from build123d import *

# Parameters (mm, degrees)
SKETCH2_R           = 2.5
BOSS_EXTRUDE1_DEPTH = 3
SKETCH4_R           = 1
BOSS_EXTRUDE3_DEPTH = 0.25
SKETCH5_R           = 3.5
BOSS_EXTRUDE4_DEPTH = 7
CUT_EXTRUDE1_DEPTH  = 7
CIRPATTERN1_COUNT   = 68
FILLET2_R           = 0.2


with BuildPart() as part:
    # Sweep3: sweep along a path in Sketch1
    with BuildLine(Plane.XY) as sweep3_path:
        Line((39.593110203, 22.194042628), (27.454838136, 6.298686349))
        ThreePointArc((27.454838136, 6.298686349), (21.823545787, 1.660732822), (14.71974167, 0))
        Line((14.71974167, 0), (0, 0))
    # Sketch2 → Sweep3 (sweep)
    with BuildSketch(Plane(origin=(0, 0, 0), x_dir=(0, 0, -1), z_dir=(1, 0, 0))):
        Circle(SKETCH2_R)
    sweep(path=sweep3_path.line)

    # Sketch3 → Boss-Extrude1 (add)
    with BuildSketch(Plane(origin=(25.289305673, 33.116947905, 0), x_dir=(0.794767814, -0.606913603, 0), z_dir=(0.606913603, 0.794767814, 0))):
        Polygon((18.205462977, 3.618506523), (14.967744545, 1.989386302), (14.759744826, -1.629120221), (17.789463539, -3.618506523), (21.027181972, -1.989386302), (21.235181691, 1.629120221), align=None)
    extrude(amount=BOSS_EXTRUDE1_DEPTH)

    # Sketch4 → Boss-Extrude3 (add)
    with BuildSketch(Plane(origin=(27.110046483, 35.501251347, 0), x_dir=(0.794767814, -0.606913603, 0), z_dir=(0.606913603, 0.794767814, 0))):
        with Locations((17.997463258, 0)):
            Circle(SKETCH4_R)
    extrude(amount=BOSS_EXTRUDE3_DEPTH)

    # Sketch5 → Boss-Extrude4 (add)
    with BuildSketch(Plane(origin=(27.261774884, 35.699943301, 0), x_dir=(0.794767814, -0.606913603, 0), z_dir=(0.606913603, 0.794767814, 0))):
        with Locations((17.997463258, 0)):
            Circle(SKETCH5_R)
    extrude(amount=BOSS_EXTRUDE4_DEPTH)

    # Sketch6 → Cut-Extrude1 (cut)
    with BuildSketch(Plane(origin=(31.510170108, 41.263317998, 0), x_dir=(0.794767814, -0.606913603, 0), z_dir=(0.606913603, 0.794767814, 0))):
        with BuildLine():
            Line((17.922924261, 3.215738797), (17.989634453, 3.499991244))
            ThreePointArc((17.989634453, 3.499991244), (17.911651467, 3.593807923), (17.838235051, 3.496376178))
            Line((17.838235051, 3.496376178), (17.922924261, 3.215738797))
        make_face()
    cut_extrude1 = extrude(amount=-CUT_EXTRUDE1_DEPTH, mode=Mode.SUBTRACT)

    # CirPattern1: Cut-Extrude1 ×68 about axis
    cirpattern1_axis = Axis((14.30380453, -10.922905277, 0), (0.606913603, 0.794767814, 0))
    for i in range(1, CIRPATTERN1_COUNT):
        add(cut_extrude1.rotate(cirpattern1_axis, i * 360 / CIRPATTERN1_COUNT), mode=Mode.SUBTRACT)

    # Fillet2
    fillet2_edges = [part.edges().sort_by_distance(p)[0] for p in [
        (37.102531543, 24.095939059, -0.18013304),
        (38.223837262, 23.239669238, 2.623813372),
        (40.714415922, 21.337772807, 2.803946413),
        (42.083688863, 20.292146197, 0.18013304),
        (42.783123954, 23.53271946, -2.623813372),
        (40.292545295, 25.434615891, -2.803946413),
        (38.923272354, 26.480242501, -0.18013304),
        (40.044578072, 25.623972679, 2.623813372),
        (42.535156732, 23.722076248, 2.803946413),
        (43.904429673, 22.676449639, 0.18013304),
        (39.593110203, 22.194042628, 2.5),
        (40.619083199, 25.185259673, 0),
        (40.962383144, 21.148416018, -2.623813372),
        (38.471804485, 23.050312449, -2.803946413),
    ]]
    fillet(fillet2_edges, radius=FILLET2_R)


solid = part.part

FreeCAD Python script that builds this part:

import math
import FreeCAD as App
import Part
import Sketcher
from FreeCAD import Vector
Q = App.Units.Quantity


def edges_at(feature, points):
    """Names of the edges that pass closest to the given points."""
    edges = feature.Shape.Edges
    near = lambda p: min(range(len(edges)), key=lambda i: edges[i].distToShape(Part.Vertex(*p))[0])
    return sorted({f"Edge{near(p) + 1}" for p in points})


def add_polygon(sketch, points):
    """Adds a closed chain of lines whose ends are joined by coincident constraints."""
    first, n = sketch.GeometryCount, len(points)
    for a, b in zip(points, points[1:] + points[:1]):
        sketch.addGeometry(Part.LineSegment(App.Vector(*a, 0), App.Vector(*b, 0)), False)
    for i in range(n):
        sketch.addConstraint(Sketcher.Constraint("Coincident", first + i, 2, first + (i + 1) % n, 1))

doc = App.newDocument("Part")
body = doc.addObject("PartDesign::Body", "Body")

# Sketch on YZ plane
sketch1 = body.newObject("Sketcher::SketchObject", "Sketch")
sketch1.AttachmentSupport = (doc.getObject("YZ_Plane"), [""])
sketch1.MapMode = "FlatFace"
sketch1.addGeometry(Part.Circle(Vector(0, 0, 0), Vector(0, 0, 1), 2.5), False)
sketch1.addConstraint(Sketcher.Constraint("Coincident", 0, 3, -1, 1))
sketch1.addConstraint(Sketcher.Constraint("Diameter", 0, Q("5 mm")))

# Sketch on XY plane
sketch2 = body.newObject("Sketcher::SketchObject", "Sketch001")
sketch2.AttachmentSupport = (doc.getObject("XY_Plane"), [""])
sketch2.MapMode = "FlatFace"
sketch2.addGeometry(Part.LineSegment(Vector(40, 22, 0), Vector(27, 6, 0)), False)
sketch2.addGeometry(Part.ArcOfCircle(Part.Circle(Vector(15, 16, 0), Vector(0, 0, 1), 16), math.radians(-90), math.radians(-37)), False)
sketch2.addGeometry(Part.LineSegment(Vector(15, 0, 0), Vector(0, 0, 0)), False)
sketch2.addConstraint(Sketcher.Constraint("Tangent", 0, 2, 1, 2))
sketch2.addConstraint(Sketcher.Constraint("Tangent", 1, 1, 2, 1))
sketch2.addConstraint(Sketcher.Constraint("Horizontal", 2))
sketch2.addConstraint(Sketcher.Constraint("Coincident", 2, 2, -1, 1))
sketch2.addConstraint(Sketcher.Constraint("Distance", 0, Q("20 mm")))
sketch2.addConstraint(Sketcher.Constraint("Radius", 1, Q("16.023669 mm")))
sketch2.addConstraint(Sketcher.Constraint("DistanceX", 2, 2, 2, 1, Q("14.719742 mm")))
sketch2.addConstraint(Sketcher.Constraint("DistanceX", -1, 1, 0, 1, Q("39.59311 mm")))
doc.recompute()

additivepipe = body.newObject("PartDesign::AdditivePipe", "AdditivePipe")
additivepipe.Profile = sketch1
additivepipe.Spine = (sketch2, ["Edge1", "Edge2", "Edge3"])

# Sketch on an angled plane
sketch3 = body.newObject("Sketcher::SketchObject", "Sketch002")
sketch3.Placement = App.Placement(Vector(25.289306, 33.116948, 0), App.Rotation(Vector(0.794767814, -0.606913603, 0), Vector(0, 0, -1), Vector(0.606913603, 0.794767814, 0), "ZXY"))
add_polygon(sketch3, [(18.2, 3.6), (15, 2), (14.8, -1.6), (17.8, -3.6), (21, -2), (21.2, 1.6)])  # lines 0-5
sketch3.addConstraint(Sketcher.Constraint("Parallel", 0, 3))
sketch3.addConstraint(Sketcher.Constraint("Parallel", 1, 4))
sketch3.addConstraint(Sketcher.Constraint("Parallel", 2, 5))
sketch3.addConstraint(Sketcher.Constraint("Equal", 0, 1))
sketch3.addConstraint(Sketcher.Constraint("Equal", 1, 2))
sketch3.addConstraint(Sketcher.Constraint("Equal", 2, 3))
sketch3.addConstraint(Sketcher.Constraint("DistanceX", 1, 2, 0, 2, Q("0.208 mm")))
sketch3.addConstraint(Sketcher.Constraint("DistanceX", 2, 2, 5, 2, Q("0.415999 mm")))
sketch3.addConstraint(Sketcher.Constraint("Distance", 0, Q("3.62448 mm")))
sketch3.addConstraint(Sketcher.Constraint("DistanceY", 1, 2, -1, 1, Q("1.62912 mm")))
sketch3.addConstraint(Sketcher.Constraint("DistanceX", -1, 1, 3, 2, Q("21.027182 mm")))
sketch3.addConstraint(Sketcher.Constraint("DistanceY", -1, 1, 4, 2, Q("1.62912 mm")))
pad1 = body.newObject("PartDesign::Pad", "Pad")
pad1.Profile = sketch3
pad1.Length = 3

# Sketch on an angled plane
sketch4 = body.newObject("Sketcher::SketchObject", "Sketch003")
sketch4.Placement = App.Placement(Vector(27.110046, 35.501251, 0), App.Rotation(Vector(0.794767814, -0.606913603, 0), Vector(0, 0, -1), Vector(0.606913603, 0.794767814, 0), "ZXY"))
sketch4.addGeometry(Part.Circle(Vector(18, 0, 0), Vector(0, 0, 1), 1), False)
sketch4.addConstraint(Sketcher.Constraint("PointOnObject", 0, 3, -1))
sketch4.addConstraint(Sketcher.Constraint("Diameter", 0, Q("2 mm")))
sketch4.addConstraint(Sketcher.Constraint("DistanceX", -1, 1, 0, 3, Q("17.997463 mm")))
pad2 = body.newObject("PartDesign::Pad", "Pad001")
pad2.Profile = sketch4
pad2.Length = 0.25

# Sketch on an angled plane
sketch5 = body.newObject("Sketcher::SketchObject", "Sketch004")
sketch5.Placement = App.Placement(Vector(27.261775, 35.699943, 0), App.Rotation(Vector(0.794767814, -0.606913603, 0), Vector(0, 0, -1), Vector(0.606913603, 0.794767814, 0), "ZXY"))
sketch5.addGeometry(Part.Circle(Vector(18, 0, 0), Vector(0, 0, 1), 3.5), False)
sketch5.addConstraint(Sketcher.Constraint("PointOnObject", 0, 3, -1))
sketch5.addConstraint(Sketcher.Constraint("Diameter", 0, Q("7 mm")))
sketch5.addConstraint(Sketcher.Constraint("DistanceX", -1, 1, 0, 3, Q("17.997463 mm")))
pad3 = body.newObject("PartDesign::Pad", "Pad002")
pad3.Profile = sketch5
pad3.Length = 7

# Sketch on an angled plane
sketch6 = body.newObject("Sketcher::SketchObject", "Sketch005")
sketch6.Placement = App.Placement(Vector(31.51017, 41.263318, 0), App.Rotation(Vector(0.794767814, -0.606913603, 0), Vector(0, 0, -1), Vector(0.606913603, 0.794767814, 0), "ZXY"))
sketch6.addGeometry(Part.LineSegment(Vector(17.92, 3.22, 0), Vector(17.99, 3.5, 0)), False)
sketch6.addGeometry(Part.ArcOfCircle(Part.Circle(Vector(17.91, 3.52, 0), Vector(0, 0, 1), 0.08), math.radians(-12), math.radians(195)), False)
sketch6.addGeometry(Part.LineSegment(Vector(17.84, 3.5, 0), Vector(17.92, 3.22, 0)), False)
sketch6.addConstraint(Sketcher.Constraint("Coincident", 0, 2, 1, 1))
sketch6.addConstraint(Sketcher.Constraint("Coincident", 1, 2, 2, 1))
sketch6.addConstraint(Sketcher.Constraint("Coincident", 2, 2, 0, 1))
sketch6.addConstraint(Sketcher.Constraint("Radius", 1, Q("0.077798 mm")))
sketch6.addConstraint(Sketcher.Constraint("DistanceX", 1, 2, 0, 2, Q("0.151399 mm")))
sketch6.addConstraint(Sketcher.Constraint("DistanceX", -1, 1, 1, 3, Q("17.913509 mm")))
sketch6.addConstraint(Sketcher.Constraint("DistanceY", -1, 1, 0, 2, Q("3.499991 mm")))
sketch6.addConstraint(Sketcher.Constraint("DistanceY", -1, 1, 2, 2, Q("3.215739 mm")))
sketch6.addConstraint(Sketcher.Constraint("DistanceY", 0, 2, 1, 3, Q("0.016041 mm")))
sketch6.addConstraint(Sketcher.Constraint("DistanceX", 2, 2, 0, 2, Q("0.06671 mm")))
pocket1 = body.newObject("PartDesign::Pocket", "Pocket")
pocket1.Profile = sketch6
pocket1.Length = 7
doc.recompute()

datumline = body.newObject("PartDesign::Line", "DatumLine")
datumline.Placement = App.Placement(Vector(14.303805, -10.922905, 0), App.Rotation(Vector(0, 0, 1), Vector(0.606913603, 0.794767814, 0)))
polarpattern = body.newObject("PartDesign::PolarPattern", "PolarPattern")
polarpattern.Originals = [pocket1]
polarpattern.Axis = (datumline, [""])
polarpattern.Angle = 360
polarpattern.Occurrences = 68
body.Tip = polarpattern
doc.recompute()

fillet = body.newObject("PartDesign::Fillet", "Fillet")
fillet.Base = (polarpattern, edges_at(polarpattern, [
    (37.103, 24.096, -0.18),
    (38.224, 23.24, 2.624),
    (40.714, 21.338, 2.804),
    (42.084, 20.292, 0.18),
    (42.783, 23.533, -2.624),
    (40.293, 25.435, -2.804),
    (38.923, 26.48, -0.18),
    (40.045, 25.624, 2.624),
    (42.535, 23.722, 2.804),
    (43.904, 22.676, 0.18),
    (39.593, 22.194, 2.5),
    (40.619, 25.185, 0),
    (40.962, 21.148, -2.624),
    (38.472, 23.05, -2.804),
]))
fillet.Radius = 0.2

doc.recompute()
